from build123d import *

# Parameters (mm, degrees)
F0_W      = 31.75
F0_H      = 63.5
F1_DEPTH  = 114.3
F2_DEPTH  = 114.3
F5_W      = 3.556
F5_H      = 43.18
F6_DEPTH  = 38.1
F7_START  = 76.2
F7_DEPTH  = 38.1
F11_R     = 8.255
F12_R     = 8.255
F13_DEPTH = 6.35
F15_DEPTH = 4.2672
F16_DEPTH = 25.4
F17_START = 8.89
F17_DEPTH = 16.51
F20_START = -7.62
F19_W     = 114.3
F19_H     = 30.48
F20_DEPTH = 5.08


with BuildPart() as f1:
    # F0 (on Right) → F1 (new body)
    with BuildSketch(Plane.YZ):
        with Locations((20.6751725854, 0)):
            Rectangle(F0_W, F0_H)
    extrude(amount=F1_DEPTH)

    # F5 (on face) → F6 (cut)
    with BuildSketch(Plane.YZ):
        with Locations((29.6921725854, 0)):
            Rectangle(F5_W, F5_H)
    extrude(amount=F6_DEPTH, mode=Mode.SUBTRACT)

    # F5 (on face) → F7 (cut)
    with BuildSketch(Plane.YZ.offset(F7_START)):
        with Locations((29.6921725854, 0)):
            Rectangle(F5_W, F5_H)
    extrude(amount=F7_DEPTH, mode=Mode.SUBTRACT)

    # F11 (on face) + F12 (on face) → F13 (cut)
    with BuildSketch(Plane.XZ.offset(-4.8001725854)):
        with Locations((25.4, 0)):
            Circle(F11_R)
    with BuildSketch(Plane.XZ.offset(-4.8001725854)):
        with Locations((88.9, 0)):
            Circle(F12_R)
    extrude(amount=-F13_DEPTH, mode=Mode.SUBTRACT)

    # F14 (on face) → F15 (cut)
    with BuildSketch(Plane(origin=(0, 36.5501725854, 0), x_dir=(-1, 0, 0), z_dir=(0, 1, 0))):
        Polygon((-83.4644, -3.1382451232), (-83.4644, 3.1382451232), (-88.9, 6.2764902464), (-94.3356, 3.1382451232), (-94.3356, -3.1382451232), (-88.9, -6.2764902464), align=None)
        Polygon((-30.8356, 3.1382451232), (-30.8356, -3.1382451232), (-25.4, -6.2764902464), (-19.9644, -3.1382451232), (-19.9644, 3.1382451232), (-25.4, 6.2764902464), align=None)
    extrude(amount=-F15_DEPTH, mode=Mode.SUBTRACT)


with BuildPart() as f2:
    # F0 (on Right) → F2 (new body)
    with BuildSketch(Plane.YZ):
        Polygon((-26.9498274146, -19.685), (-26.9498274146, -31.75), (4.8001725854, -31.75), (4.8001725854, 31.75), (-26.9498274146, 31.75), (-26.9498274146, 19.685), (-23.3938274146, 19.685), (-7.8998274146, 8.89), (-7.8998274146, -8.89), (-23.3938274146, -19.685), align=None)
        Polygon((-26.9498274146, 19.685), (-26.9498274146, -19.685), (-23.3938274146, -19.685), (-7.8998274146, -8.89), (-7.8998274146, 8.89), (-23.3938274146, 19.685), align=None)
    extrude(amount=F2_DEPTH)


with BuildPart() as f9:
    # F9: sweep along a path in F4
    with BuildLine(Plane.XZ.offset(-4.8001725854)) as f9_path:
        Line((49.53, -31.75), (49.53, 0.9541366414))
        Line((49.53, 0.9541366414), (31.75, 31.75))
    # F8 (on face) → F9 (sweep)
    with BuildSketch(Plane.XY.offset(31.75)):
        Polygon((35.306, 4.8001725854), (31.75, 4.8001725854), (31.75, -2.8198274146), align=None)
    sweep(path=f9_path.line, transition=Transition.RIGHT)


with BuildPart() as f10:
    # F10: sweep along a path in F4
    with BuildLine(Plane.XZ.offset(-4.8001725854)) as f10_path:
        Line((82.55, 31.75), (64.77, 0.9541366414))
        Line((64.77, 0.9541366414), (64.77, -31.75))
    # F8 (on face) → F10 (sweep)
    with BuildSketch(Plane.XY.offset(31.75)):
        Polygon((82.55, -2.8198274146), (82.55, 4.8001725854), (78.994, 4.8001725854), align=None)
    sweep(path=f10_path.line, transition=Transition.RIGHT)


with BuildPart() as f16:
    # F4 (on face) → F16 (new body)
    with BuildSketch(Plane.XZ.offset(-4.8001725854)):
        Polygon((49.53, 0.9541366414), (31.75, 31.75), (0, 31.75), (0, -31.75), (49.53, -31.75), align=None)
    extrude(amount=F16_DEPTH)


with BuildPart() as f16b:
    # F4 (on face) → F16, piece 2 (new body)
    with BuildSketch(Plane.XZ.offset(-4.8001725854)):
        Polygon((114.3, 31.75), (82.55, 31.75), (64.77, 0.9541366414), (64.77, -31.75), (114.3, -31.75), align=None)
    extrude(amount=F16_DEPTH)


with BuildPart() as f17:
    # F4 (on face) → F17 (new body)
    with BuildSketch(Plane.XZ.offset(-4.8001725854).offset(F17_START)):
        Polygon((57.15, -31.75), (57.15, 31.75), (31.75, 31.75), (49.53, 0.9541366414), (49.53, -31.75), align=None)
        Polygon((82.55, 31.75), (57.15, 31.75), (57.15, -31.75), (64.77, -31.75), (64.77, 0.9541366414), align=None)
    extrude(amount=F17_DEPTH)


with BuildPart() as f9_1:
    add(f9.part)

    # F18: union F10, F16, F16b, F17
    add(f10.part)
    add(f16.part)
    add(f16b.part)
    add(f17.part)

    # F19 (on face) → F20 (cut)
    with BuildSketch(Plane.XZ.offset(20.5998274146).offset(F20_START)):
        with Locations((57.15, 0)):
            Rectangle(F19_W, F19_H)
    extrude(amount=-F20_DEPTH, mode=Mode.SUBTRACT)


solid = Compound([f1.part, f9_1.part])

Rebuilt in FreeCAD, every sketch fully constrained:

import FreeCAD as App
import Part
import Sketcher
Q = App.Units.Quantity


def add_polygon(sketch, points):
    """Adds a closed chain of lines whose ends are joined by coincident constraints."""
    first, n = sketch.GeometryCount, len(points)
    for a, b in zip(points, points[1:] + points[:1]):
        sketch.addGeometry(Part.LineSegment(App.Vector(*a, 0), App.Vector(*b, 0)), False)
    for i in range(n):
        sketch.addConstraint(Sketcher.Constraint("Coincident", first + i, 2, first + (i + 1) % n, 1))

doc = App.newDocument("Part")
body = doc.addObject("PartDesign::Body", "Body")

# Sketch on YZ plane
sketch1 = body.newObject("Sketcher::SketchObject", "Sketch")
sketch1.AttachmentSupport = (doc.getObject("YZ_Plane"), [""])
sketch1.MapMode = "FlatFace"
add_polygon(sketch1, [(5, 32), (5, -32), (37, -32), (37, 32)])  # lines 0-3
sketch1.addConstraint(Sketcher.Constraint("Vertical", 0))
sketch1.addConstraint(Sketcher.Constraint("Horizontal", 1))
sketch1.addConstraint(Sketcher.Constraint("Vertical", 2))
sketch1.addConstraint(Sketcher.Constraint("Horizontal", 3))
sketch1.addConstraint(Sketcher.Constraint("DistanceY", 0, 2, 0, 1, Q("2.5 in")))
sketch1.addConstraint(Sketcher.Constraint("DistanceX", 1, 1, 1, 2, Q("1.25 in")))
sketch1.addConstraint(Sketcher.Constraint("DistanceY", 0, 2, -1, 1, Q("1.25 in")))
sketch1.addConstraint(Sketcher.Constraint("DistanceX", -1, 1, 0, 2, 4.800173))
pad1 = body.newObject("PartDesign::Pad", "Pad")
pad1.Profile = sketch1
pad1.Length = Q("4.5 in")

# Sketch on YZ plane
sketch2 = body.newObject("Sketcher::SketchObject", "Sketch001")
sketch2.AttachmentSupport = (doc.getObject("YZ_Plane"), [""])
sketch2.MapMode = "FlatFace"
add_polygon(sketch2, [(27.9, 21.6), (27.9, -21.6), (31.5, -21.6), (31.5, 21.6)])  # lines 0-3
sketch2.addConstraint(Sketcher.Constraint("Vertical", 0))
sketch2.addConstraint(Sketcher.Constraint("Horizontal", 1))
sketch2.addConstraint(Sketcher.Constraint("Vertical", 2))
sketch2.addConstraint(Sketcher.Constraint("Horizontal", 3))
sketch2.addConstraint(Sketcher.Constraint("DistanceY", 0, 2, 0, 1, Q("1.7 in")))
sketch2.addConstraint(Sketcher.Constraint("DistanceX", 1, 1, 1, 2, Q("0.14 in")))
sketch2.addConstraint(Sketcher.Constraint("DistanceY", 0, 2, -1, 1, Q("0.85 in")))
sketch2.addConstraint(Sketcher.Constraint("DistanceX", -1, 1, 0, 2, 27.914173))
pocket1 = body.newObject("PartDesign::Pocket", "Pocket")
pocket1.Profile = sketch2
pocket1.Length = Q("1.5 in")
pocket1.Reversed = True

# Sketch on YZ plane
sketch3 = body.newObject("Sketcher::SketchObject", "Sketch002")
sketch3.AttachmentSupport = (doc.getObject("YZ_Plane"), [""])
sketch3.MapMode = "FlatFace"
sketch3.AttachmentOffset = App.Placement(App.Vector(0, 0, 3 * 25.4), App.Rotation())
add_polygon(sketch3, [(27.9, 21.6), (27.9, -21.6), (31.5, -21.6), (31.5, 21.6)])  # lines 0-3
sketch3.addConstraint(Sketcher.Constraint("Vertical", 0))
sketch3.addConstraint(Sketcher.Constraint("Horizontal", 1))
sketch3.addConstraint(Sketcher.Constraint("Vertical", 2))
sketch3.addConstraint(Sketcher.Constraint("Horizontal", 3))
sketch3.addConstraint(Sketcher.Constraint("DistanceY", 0, 2, 0, 1, Q("1.7 in")))
sketch3.addConstraint(Sketcher.Constraint("DistanceX", 1, 1, 1, 2, Q("0.14 in")))
sketch3.addConstraint(Sketcher.Constraint("DistanceY", 0, 2, -1, 1, Q("0.85 in")))
sketch3.addConstraint(Sketcher.Constraint("DistanceX", -1, 1, 0, 2, 27.914173))
pocket2 = body.newObject("PartDesign::Pocket", "Pocket001")
pocket2.Profile = sketch3
pocket2.Length = Q("1.5 in")
pocket2.Reversed = True

# Sketch on XZ plane
sketch4 = body.newObject("Sketcher::SketchObject", "Sketch003")
sketch4.AttachmentSupport = (doc.getObject("XZ_Plane"), [""])
sketch4.MapMode = "FlatFace"
sketch4.AttachmentOffset = App.Placement(App.Vector(0, 0, -4.800173), App.Rotation())
sketch4.addGeometry(Part.Circle(App.Vector(25, 0, 0), App.Vector(0, 0, 1), 8), False)
sketch4.addGeometry(Part.Circle(App.Vector(89, 0, 0), App.Vector(0, 0, 1), 8), False)
sketch4.addConstraint(Sketcher.Constraint("Equal", 0, 1))
sketch4.addConstraint(Sketcher.Constraint("PointOnObject", 0, 3, -1))
sketch4.addConstraint(Sketcher.Constraint("PointOnObject", 1, 3, -1))
sketch4.addConstraint(Sketcher.Constraint("Diameter", 0, Q("0.65 in")))
sketch4.addConstraint(Sketcher.Constraint("DistanceX", -1, 1, 0, 3, Q("1 in")))
sketch4.addConstraint(Sketcher.Constraint("DistanceX", -1, 1, 1, 3, Q("3.5 in")))
pocket3 = body.newObject("PartDesign::Pocket", "Pocket002")
pocket3.Profile = sketch4
pocket3.Length = Q("0.25 in")

# Sketch on XZ plane
sketch5 = body.newObject("Sketcher::SketchObject", "Sketch004")
sketch5.AttachmentSupport = (doc.getObject("XZ_Plane"), [""])
sketch5.MapMode = "FlatFace"
sketch5.AttachmentOffset = App.Placement(App.Vector(0, 0, -36.550173), App.Rotation())
add_polygon(sketch5, [(83, -3), (83, 3), (89, 6), (94, 3), (94, -3), (89, -6)])  # lines 0-5
add_polygon(sketch5, [(31, 3), (31, -3), (25, -6), (20, -3), (20, 3), (25, 6)])  # lines 6-11
sketch5.addConstraint(Sketcher.Constraint("Vertical", 0))
sketch5.addConstraint(Sketcher.Constraint("Vertical", 3))
sketch5.addConstraint(Sketcher.Constraint("Vertical", 6))
sketch5.addConstraint(Sketcher.Constraint("Vertical", 9))
sketch5.addConstraint(Sketcher.Constraint("Symmetric", 1, 2, 4, 2, -1))
sketch5.addConstraint(Sketcher.Constraint("Symmetric", 7, 2, 10, 2, -1))
sketch5.addConstraint(Sketcher.Constraint("Parallel", 1, 4))
sketch5.addConstraint(Sketcher.Constraint("Parallel", 2, 5))
sketch5.addConstraint(Sketcher.Constraint("Parallel", 4, 7))
sketch5.addConstraint(Sketcher.Constraint("Parallel", 5, 8))
sketch5.addConstraint(Sketcher.Constraint("Parallel", 7, 10))
sketch5.addConstraint(Sketcher.Constraint("Parallel", 8, 11))
sketch5.addConstraint(Sketcher.Constraint("Horizontal", 0, 2, 2, 2))
sketch5.addConstraint(Sketcher.Constraint("Horizontal", 3, 2, 5, 2))
sketch5.addConstraint(Sketcher.Constraint("Horizontal", 5, 2, 6, 2))
sketch5.addConstraint(Sketcher.Constraint("Horizontal", 4, 2, 7, 2))
sketch5.addConstraint(Sketcher.Constraint("Horizontal", 6, 2, 8, 2))
sketch5.addConstraint(Sketcher.Constraint("DistanceX", -1, 1, 7, 2, Q("1 in")))
sketch5.addConstraint(Sketcher.Constraint("Angle", 1, Q("30 deg")))
sketch5.addConstraint(Sketcher.Constraint("DistanceX", -1, 1, 1, 2, Q("3.5 in")))
sketch5.addConstraint(Sketcher.Constraint("DistanceX", -1, 1, 0, 2, Q("3.286 in")))
sketch5.addConstraint(Sketcher.Constraint("DistanceY", 0, 1, 0, 2, 6.27649))
pocket4 = body.newObject("PartDesign::Pocket", "Pocket003")
pocket4.Profile = sketch5
pocket4.Length = Q("0.168 in")
pocket4.Reversed = True
body2 = doc.addObject("PartDesign::Body", "Body001")

# Sketch on YZ plane
sketch6 = body2.newObject("Sketcher::SketchObject", "Sketch005")
sketch6.AttachmentSupport = (doc.getObject("YZ_Plane001"), [""])
sketch6.MapMode = "FlatFace"
add_polygon(sketch6, [(-27, -32), (5, -32), (5, 32), (-27, 32)])  # lines 0-3
sketch6.addConstraint(Sketcher.Constraint("Horizontal", 0))
sketch6.addConstraint(Sketcher.Constraint("Vertical", 1))
sketch6.addConstraint(Sketcher.Constraint("Horizontal", 2))
sketch6.addConstraint(Sketcher.Constraint("Vertical", 3))
sketch6.addConstraint(Sketcher.Constraint("DistanceY", 1, 1, 1, 2, Q("2.5 in")))
sketch6.addConstraint(Sketcher.Constraint("DistanceX", 0, 1, 0, 2, Q("1.25 in")))
sketch6.addConstraint(Sketcher.Constraint("DistanceY", 0, 2, -1, 1, Q("1.25 in")))
sketch6.addConstraint(Sketcher.Constraint("DistanceX", -1, 1, 0, 2, 4.800173))
pad2 = body2.newObject("PartDesign::Pad", "Pad001")
pad2.Profile = sketch6
pad2.Length = Q("4.5 in")
body3 = doc.addObject("PartDesign::Body", "Body002")

# Sketch on XY plane
sketch7 = body3.newObject("Sketcher::SketchObject", "Sketch006")
sketch7.AttachmentSupport = (doc.getObject("XY_Plane002"), [""])
sketch7.MapMode = "FlatFace"
sketch7.AttachmentOffset = App.Placement(App.Vector(0, 0, 1.25 * 25.4), App.Rotation())
add_polygon(sketch7, [(35.3, 4.8), (31.8, 4.8), (31.8, -2.8)])  # lines 0-2
sketch7.addConstraint(Sketcher.Constraint("Horizontal", 0))
sketch7.addConstraint(Sketcher.Constraint("Vertical", 1))
sketch7.addConstraint(Sketcher.Constraint("DistanceY", 1, 2, 1, 1, Q("0.3 in")))
sketch7.addConstraint(Sketcher.Constraint("DistanceX", 0, 2, 0, 1, Q("0.14 in")))
sketch7.addConstraint(Sketcher.Constraint("DistanceX", -1, 1, 0, 2, Q("1.25 in")))
sketch7.addConstraint(Sketcher.Constraint("DistanceY", -1, 1, 0, 2, 4.800173))

# Sketch on XZ plane
sketch8 = body3.newObject("Sketcher::SketchObject", "Sketch007")
sketch8.AttachmentSupport = (doc.getObject("XZ_Plane002"), [""])
sketch8.MapMode = "FlatFace"
sketch8.AttachmentOffset = App.Placement(App.Vector(0, 0, -4.800173), App.Rotation())
sketch8.addGeometry(Part.LineSegment(App.Vector(50, -32, 0), App.Vector(50, 1, 0)), False)
sketch8.addGeometry(Part.LineSegment(App.Vector(50, 1, 0), App.Vector(32, 32, 0)), False)
sketch8.addConstraint(Sketcher.Constraint("Coincident", 0, 2, 1, 1))
sketch8.addConstraint(Sketcher.Constraint("Vertical", 0))
sketch8.addConstraint(Sketcher.Constraint("Angle", 1, Q("120 deg")))
sketch8.addConstraint(Sketcher.Constraint("Distance", 1, Q("1.4 in")))
sketch8.addConstraint(Sketcher.Constraint("DistanceY", 0, 1, 1, 2, Q("2.5 in")))
sketch8.addConstraint(Sketcher.Constraint("DistanceX", -1, 1, 0, 1, Q("1.95 in")))
sketch8.addConstraint(Sketcher.Constraint("DistanceY", 0, 1, -1, 1, Q("1.25 in")))
doc.recompute()

additivepipe = body3.newObject("PartDesign::AdditivePipe", "AdditivePipe")
additivepipe.Profile = sketch7
additivepipe.Spine = (sketch8, ["Edge1", "Edge2"])
additivepipe.Transition = "Right corner"
body4 = doc.addObject("PartDesign::Body", "Body003")

# Sketch on XY plane
sketch9 = body4.newObject("Sketcher::SketchObject", "Sketch008")
sketch9.AttachmentSupport = (doc.getObject("XY_Plane003"), [""])
sketch9.MapMode = "FlatFace"
sketch9.AttachmentOffset = App.Placement(App.Vector(0, 0, 1.25 * 25.4), App.Rotation())
add_polygon(sketch9, [(82.5, -2.8), (82.5, 4.8), (79, 4.8)])  # lines 0-2
sketch9.addConstraint(Sketcher.Constraint("Vertical", 0))
sketch9.addConstraint(Sketcher.Constraint("Horizontal", 1))
sketch9.addConstraint(Sketcher.Constraint("DistanceY", 0, 1, 0, 2, Q("0.3 in")))
sketch9.addConstraint(Sketcher.Constraint("DistanceX", 1, 2, 1, 1, Q("0.14 in")))
sketch9.addConstraint(Sketcher.Constraint("DistanceX", -1, 1, 0, 2, Q("3.25 in")))
sketch9.addConstraint(Sketcher.Constraint("DistanceY", -1, 1, 0, 2, 4.800173))

# Sketch on XZ plane
sketch10 = body4.newObject("Sketcher::SketchObject", "Sketch009")
sketch10.AttachmentSupport = (doc.getObject("XZ_Plane003"), [""])
sketch10.MapMode = "FlatFace"
sketch10.AttachmentOffset = App.Placement(App.Vector(0, 0, -4.800173), App.Rotation())
sketch10.addGeometry(Part.LineSegment(App.Vector(83, 32, 0), App.Vector(65, 1, 0)), False)
sketch10.addGeometry(Part.LineSegment(App.Vector(65, 1, 0), App.Vector(65, -32, 0)), False)
sketch10.addConstraint(Sketcher.Constraint("Coincident", 0, 2, 1, 1))
sketch10.addConstraint(Sketcher.Constraint("Vertical", 1))
sketch10.addConstraint(Sketcher.Constraint("Angle", 0, Q("-120 deg")))
sketch10.addConstraint(Sketcher.Constraint("Distance", 0, Q("1.4 in")))
sketch10.addConstraint(Sketcher.Constraint("DistanceY", 1, 2, 0, 1, Q("2.5 in")))
sketch10.addConstraint(Sketcher.Constraint("DistanceX", -1, 1, 0, 1, Q("3.25 in")))
sketch10.addConstraint(Sketcher.Constraint("DistanceY", -1, 1, 0, 1, Q("1.25 in")))
doc.recompute()

additivepipe2 = body4.newObject("PartDesign::AdditivePipe", "AdditivePipe001")
additivepipe2.Profile = sketch9
additivepipe2.Spine = (sketch10, ["Edge1", "Edge2"])
additivepipe2.Transition = "Right corner"
body5 = doc.addObject("PartDesign::Body", "Body004")

# Sketch on XZ plane
sketch11 = body5.newObject("Sketcher::SketchObject", "Sketch010")
sketch11.AttachmentSupport = (doc.getObject("XZ_Plane004"), [""])
sketch11.MapMode = "FlatFace"
sketch11.AttachmentOffset = App.Placement(App.Vector(0, 0, -4.800173), App.Rotation())
add_polygon(sketch11, [(50, 1), (32, 32), (0, 32), (0, -32), (50, -32)])  # lines 0-4
sketch11.addConstraint(Sketcher.Constraint("Horizontal", 1))
sketch11.addConstraint(Sketcher.Constraint("Vertical", 2))
sketch11.addConstraint(Sketcher.Constraint("Horizontal", 3))
sketch11.addConstraint(Sketcher.Constraint("Vertical", 4))
sketch11.addConstraint(Sketcher.Constraint("Symmetric", 1, 2, 2, 2, -1, 1))
sketch11.addConstraint(Sketcher.Constraint("DistanceY", 2, 2, 2, 1, Q("2.5 in")))
sketch11.addConstraint(Sketcher.Constraint("Angle", 0, Q("120 deg")))
sketch11.addConstraint(Sketcher.Constraint("Distance", 0, Q("1.4 in")))
sketch11.addConstraint(Sketcher.Constraint("DistanceX", 1, 2, 1, 1, Q("1.25 in")))
pad3 = body5.newObject("PartDesign::Pad", "Pad002")
pad3.Profile = sketch11
pad3.Length = Q("1 in")
body6 = doc.addObject("PartDesign::Body", "Body005")

# Sketch on XZ plane
sketch12 = body6.newObject("Sketcher::SketchObject", "Sketch011")
sketch12.AttachmentSupport = (doc.getObject("XZ_Plane005"), [""])
sketch12.MapMode = "FlatFace"
sketch12.AttachmentOffset = App.Placement(App.Vector(0, 0, -4.800173), App.Rotation())
add_polygon(sketch12, [(114, 32), (83, 32), (65, 1), (65, -32), (114, -32)])  # lines 0-4
sketch12.addConstraint(Sketcher.Constraint("Horizontal", 0))
sketch12.addConstraint(Sketcher.Constraint("Vertical", 2))
sketch12.addConstraint(Sketcher.Constraint("Horizontal", 3))
sketch12.addConstraint(Sketcher.Constraint("Vertical", 4))
sketch12.addConstraint(Sketcher.Constraint("DistanceY", 4, 1, 4, 2, Q("2.5 in")))
sketch12.addConstraint(Sketcher.Constraint("Angle", 1, Q("-120 deg")))
sketch12.addConstraint(Sketcher.Constraint("Distance", 1, Q("1.4 in")))
sketch12.addConstraint(Sketcher.Constraint("DistanceX", 0, 2, 0, 1, Q("1.25 in")))
sketch12.addConstraint(Sketcher.Constraint("DistanceX", -1, 1, 3, 2, Q("4.5 in")))
sketch12.addConstraint(Sketcher.Constraint("DistanceY", -1, 1, 0, 2, Q("1.25 in")))
pad4 = body6.newObject("PartDesign::Pad", "Pad003")
pad4.Profile = sketch12
pad4.Length = Q("1 in")
body7 = doc.addObject("PartDesign::Body", "Body006")

# Sketch on XZ plane
sketch13 = body7.newObject("Sketcher::SketchObject", "Sketch012")
sketch13.AttachmentSupport = (doc.getObject("XZ_Plane006"), [""])
sketch13.MapMode = "FlatFace"
sketch13.AttachmentOffset = App.Placement(App.Vector(0, 0, 4.089827), App.Rotation())
add_polygon(sketch13, [(32, 32), (50, 1), (50, -32), (65, -32), (65, 1), (83, 32)])  # lines 0-5
sketch13.addConstraint(Sketcher.Constraint("Vertical", 1))
sketch13.addConstraint(Sketcher.Constraint("Horizontal", 2))
sketch13.addConstraint(Sketcher.Constraint("Vertical", 3))
sketch13.addConstraint(Sketcher.Constraint("Horizontal", 5))
sketch13.addConstraint(Sketcher.Constraint("Horizontal", 0, 2, 3, 2))
sketch13.addConstraint(Sketcher.Constraint("Equal", 0, 4))
sketch13.addConstraint(Sketcher.Constraint("DistanceX", 5, 2, 5, 1, Q("2 in")))
sketch13.addConstraint(Sketcher.Constraint("DistanceX", 2, 1, 2, 2, Q("0.6 in")))
sketch13.addConstraint(Sketcher.Constraint("Angle", 0, Q("-60 deg")))
sketch13.addConstraint(Sketcher.Constraint("DistanceY", 2, 2, 4, 2, Q("2.5 in")))
sketch13.addConstraint(Sketcher.Constraint("DistanceX", -1, 1, 0, 2, Q("1.95 in")))
sketch13.addConstraint(Sketcher.Constraint("DistanceY", 1, 2, -1, 1, Q("1.25 in")))
pad5 = body7.newObject("PartDesign::Pad", "Pad004")
pad5.Profile = sketch13
pad5.Length = Q("0.65 in")
body3.AllowCompound = True
doc.recompute()

boolean = body3.newObject("PartDesign::Boolean", "Boolean")
boolean.Type = "Fuse"
boolean.addObjects([body4])
doc.recompute()

boolean2 = body3.newObject("PartDesign::Boolean", "Boolean001")
boolean2.Type = "Fuse"
boolean2.addObjects([body5])
doc.recompute()

boolean3 = body3.newObject("PartDesign::Boolean", "Boolean002")
boolean3.Type = "Fuse"
boolean3.addObjects([body6])
doc.recompute()

boolean4 = body3.newObject("PartDesign::Boolean", "Boolean003")
boolean4.Type = "Fuse"
boolean4.addObjects([body7])

# Sketch on XZ plane
sketch14 = body3.newObject("Sketcher::SketchObject", "Sketch013")
sketch14.AttachmentSupport = (doc.getObject("XZ_Plane002"), [""])
sketch14.MapMode = "FlatFace"
sketch14.AttachmentOffset = App.Placement(App.Vector(0, 0, 12.979827), App.Rotation())
add_polygon(sketch14, [(0, 15), (0, -15), (114, -15), (114, 15)])  # lines 0-3
sketch14.addConstraint(Sketcher.Constraint("Vertical", 0))
sketch14.addConstraint(Sketcher.Constraint("Horizontal", 1))
sketch14.addConstraint(Sketcher.Constraint("Vertical", 2))
sketch14.addConstraint(Sketcher.Constraint("Horizontal", 3))
sketch14.addConstraint(Sketcher.Constraint("Symmetric", 0, 2, 3, 2, -1, 1))
sketch14.addConstraint(Sketcher.Constraint("DistanceX", 1, 1, 1, 2, Q("4.5 in")))
sketch14.addConstraint(Sketcher.Constraint("DistanceY", 0, 2, 0, 1, Q("1.2 in")))
pocket5 = body3.newObject("PartDesign::Pocket", "Pocket004")
pocket5.Profile = sketch14
pocket5.Length = Q("0.2 in")
body2.Visibility = False

doc.recompute()
